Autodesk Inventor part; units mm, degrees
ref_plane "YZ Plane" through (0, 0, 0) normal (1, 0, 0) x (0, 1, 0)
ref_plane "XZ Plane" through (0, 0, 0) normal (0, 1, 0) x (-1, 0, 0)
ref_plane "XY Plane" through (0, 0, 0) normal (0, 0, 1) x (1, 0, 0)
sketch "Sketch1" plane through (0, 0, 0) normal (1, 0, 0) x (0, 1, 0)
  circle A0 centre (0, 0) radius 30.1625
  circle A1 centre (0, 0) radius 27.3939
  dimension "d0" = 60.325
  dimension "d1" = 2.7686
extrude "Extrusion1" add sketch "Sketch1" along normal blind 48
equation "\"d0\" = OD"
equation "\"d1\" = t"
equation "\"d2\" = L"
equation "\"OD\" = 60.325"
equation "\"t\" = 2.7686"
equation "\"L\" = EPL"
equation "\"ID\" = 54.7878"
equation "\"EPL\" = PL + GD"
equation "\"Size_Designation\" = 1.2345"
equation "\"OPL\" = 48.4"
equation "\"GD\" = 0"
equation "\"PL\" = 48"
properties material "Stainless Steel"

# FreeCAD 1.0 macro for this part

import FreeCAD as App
import Part
import Sketcher
Q = App.Units.Quantity

doc = App.newDocument("Part")
params = doc.addObject("Spreadsheet::Sheet", "Params")
for row, (alias, value) in enumerate([
    ("sketch1_diameter", "2.375 in"),
    ("sketch1_diameter2", "2.157 in"),
    ("pad1_length", "48 mm"),
], start=1):
    params.set(f"A{row}", alias)
    params.set(f"B{row}", "=" + value)
    params.setAlias(f"B{row}", alias)

body = doc.addObject("PartDesign::Body", "Body")

# Sketch on YZ plane
sketch1 = doc.addObject("Sketcher::SketchObject", "Sketch")
body.addObject(sketch1)
sketch1.AttachmentSupport = (doc.YZ_Plane, [""])
sketch1.MapMode = "FlatFace"
sketch1.addGeometry([
    Part.Circle(App.Vector(0, 0, 0), App.Vector(0, 0, 1), 30),
    Part.Circle(App.Vector(0, 0, 0), App.Vector(0, 0, 1), 27),
], False)
sketch1.addConstraint([
    Sketcher.Constraint("Coincident", 0, 3, -1, 1),
    Sketcher.Constraint("Coincident", 1, 3, -1, 1),
    Sketcher.Constraint("Diameter", 0, Q("2.375 in")),
    Sketcher.Constraint("Diameter", 1, Q("2.157 in")),
])
sketch1.setExpression("Constraints[2]", "Params.sketch1_diameter")
sketch1.setExpression("Constraints[3]", "Params.sketch1_diameter2")
pad1 = doc.addObject("PartDesign::Pad", "Pad")
body.addObject(pad1)
pad1.Profile = sketch1
pad1.setExpression("Length", "Params.pad1_length")

doc.recompute()
